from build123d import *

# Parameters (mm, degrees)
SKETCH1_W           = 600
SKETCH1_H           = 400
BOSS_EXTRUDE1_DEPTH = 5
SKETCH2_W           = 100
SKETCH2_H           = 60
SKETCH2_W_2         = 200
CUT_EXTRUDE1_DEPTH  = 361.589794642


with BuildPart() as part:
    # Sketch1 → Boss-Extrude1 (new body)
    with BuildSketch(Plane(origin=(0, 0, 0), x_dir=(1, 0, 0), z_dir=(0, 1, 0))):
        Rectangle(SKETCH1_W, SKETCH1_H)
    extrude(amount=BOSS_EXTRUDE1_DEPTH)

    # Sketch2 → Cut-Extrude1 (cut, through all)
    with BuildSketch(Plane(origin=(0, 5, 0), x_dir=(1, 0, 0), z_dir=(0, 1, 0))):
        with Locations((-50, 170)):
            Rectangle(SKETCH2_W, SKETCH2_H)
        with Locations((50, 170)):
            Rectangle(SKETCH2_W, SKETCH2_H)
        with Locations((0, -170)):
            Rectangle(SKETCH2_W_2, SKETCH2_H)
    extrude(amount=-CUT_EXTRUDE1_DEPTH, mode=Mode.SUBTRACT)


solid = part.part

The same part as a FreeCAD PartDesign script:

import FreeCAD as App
import Part
import Sketcher
from FreeCAD import Vector


def add_polygon(sketch, points):
    """Adds a closed chain of lines whose ends are joined by coincident constraints."""
    first, n = sketch.GeometryCount, len(points)
    for a, b in zip(points, points[1:] + points[:1]):
        sketch.addGeometry(Part.LineSegment(App.Vector(*a, 0), App.Vector(*b, 0)), False)
    for i in range(n):
        sketch.addConstraint(Sketcher.Constraint("Coincident", first + i, 2, first + (i + 1) % n, 1))

doc = App.newDocument("Part")
body = doc.addObject("PartDesign::Body", "Body")

# Sketch on XZ plane
sketch1 = body.newObject("Sketcher::SketchObject", "Sketch")
sketch1.AttachmentSupport = (doc.getObject("XZ_Plane"), [""])
sketch1.MapMode = "FlatFace"
add_polygon(sketch1, [(-300, -200), (-300, 200), (300, 200), (300, -200)])  # lines 0-3
sketch1.addConstraint(Sketcher.Constraint("Vertical", 0))
sketch1.addConstraint(Sketcher.Constraint("Horizontal", 1))
sketch1.addConstraint(Sketcher.Constraint("Vertical", 2))
sketch1.addConstraint(Sketcher.Constraint("Horizontal", 3))
sketch1.addConstraint(Sketcher.Constraint("Symmetric", 0, 2, 2, 2, -1, 1))
sketch1.addConstraint(Sketcher.Constraint("DistanceX", 1, 1, 1, 2, 600.0))
sketch1.addConstraint(Sketcher.Constraint("DistanceY", 0, 1, 0, 2, 400.0))
pad1 = body.newObject("PartDesign::Pad", "Pad")
pad1.Profile = sketch1
pad1.Length = 5
pad1.Reversed = True

# Sketch on XZ plane
sketch2 = body.newObject("Sketcher::SketchObject", "Sketch001")
sketch2.AttachmentSupport = (doc.getObject("XZ_Plane"), [""])
sketch2.MapMode = "FlatFace"
sketch2.AttachmentOffset = App.Placement(Vector(0, 0, -5), App.Rotation())
add_polygon(sketch2, [(-100, -200), (-100, -140), (100, -140), (100, -200)])  # lines 0-3
add_polygon(sketch2, [(-100, 140), (-100, 200), (100, 200), (100, 140)])  # lines 4-7
sketch2.addConstraint(Sketcher.Constraint("Vertical", 0))
sketch2.addConstraint(Sketcher.Constraint("Horizontal", 1))
sketch2.addConstraint(Sketcher.Constraint("Vertical", 2))
sketch2.addConstraint(Sketcher.Constraint("Horizontal", 3))
sketch2.addConstraint(Sketcher.Constraint("Vertical", 4))
sketch2.addConstraint(Sketcher.Constraint("Horizontal", 5))
sketch2.addConstraint(Sketcher.Constraint("Vertical", 6))
sketch2.addConstraint(Sketcher.Constraint("Horizontal", 7))
sketch2.addConstraint(Sketcher.Constraint("Symmetric", 2, 2, 4, 2, -1, 1))
sketch2.addConstraint(Sketcher.Constraint("Symmetric", 0, 2, 6, 2, -1, 1))
sketch2.addConstraint(Sketcher.Constraint("Vertical", 3, 2, 4, 2))
sketch2.addConstraint(Sketcher.Constraint("DistanceX", 1, 1, 1, 2, 200.0))
sketch2.addConstraint(Sketcher.Constraint("DistanceY", 0, 1, 0, 2, 60.0))
sketch2.addConstraint(Sketcher.Constraint("DistanceY", 0, 2, -1, 1, 140.0))
pocket1 = body.newObject("PartDesign::Pocket", "Pocket")
pocket1.Profile = sketch2
pocket1.Type = "ThroughAll"
pocket1.Reversed = True

doc.recompute()
